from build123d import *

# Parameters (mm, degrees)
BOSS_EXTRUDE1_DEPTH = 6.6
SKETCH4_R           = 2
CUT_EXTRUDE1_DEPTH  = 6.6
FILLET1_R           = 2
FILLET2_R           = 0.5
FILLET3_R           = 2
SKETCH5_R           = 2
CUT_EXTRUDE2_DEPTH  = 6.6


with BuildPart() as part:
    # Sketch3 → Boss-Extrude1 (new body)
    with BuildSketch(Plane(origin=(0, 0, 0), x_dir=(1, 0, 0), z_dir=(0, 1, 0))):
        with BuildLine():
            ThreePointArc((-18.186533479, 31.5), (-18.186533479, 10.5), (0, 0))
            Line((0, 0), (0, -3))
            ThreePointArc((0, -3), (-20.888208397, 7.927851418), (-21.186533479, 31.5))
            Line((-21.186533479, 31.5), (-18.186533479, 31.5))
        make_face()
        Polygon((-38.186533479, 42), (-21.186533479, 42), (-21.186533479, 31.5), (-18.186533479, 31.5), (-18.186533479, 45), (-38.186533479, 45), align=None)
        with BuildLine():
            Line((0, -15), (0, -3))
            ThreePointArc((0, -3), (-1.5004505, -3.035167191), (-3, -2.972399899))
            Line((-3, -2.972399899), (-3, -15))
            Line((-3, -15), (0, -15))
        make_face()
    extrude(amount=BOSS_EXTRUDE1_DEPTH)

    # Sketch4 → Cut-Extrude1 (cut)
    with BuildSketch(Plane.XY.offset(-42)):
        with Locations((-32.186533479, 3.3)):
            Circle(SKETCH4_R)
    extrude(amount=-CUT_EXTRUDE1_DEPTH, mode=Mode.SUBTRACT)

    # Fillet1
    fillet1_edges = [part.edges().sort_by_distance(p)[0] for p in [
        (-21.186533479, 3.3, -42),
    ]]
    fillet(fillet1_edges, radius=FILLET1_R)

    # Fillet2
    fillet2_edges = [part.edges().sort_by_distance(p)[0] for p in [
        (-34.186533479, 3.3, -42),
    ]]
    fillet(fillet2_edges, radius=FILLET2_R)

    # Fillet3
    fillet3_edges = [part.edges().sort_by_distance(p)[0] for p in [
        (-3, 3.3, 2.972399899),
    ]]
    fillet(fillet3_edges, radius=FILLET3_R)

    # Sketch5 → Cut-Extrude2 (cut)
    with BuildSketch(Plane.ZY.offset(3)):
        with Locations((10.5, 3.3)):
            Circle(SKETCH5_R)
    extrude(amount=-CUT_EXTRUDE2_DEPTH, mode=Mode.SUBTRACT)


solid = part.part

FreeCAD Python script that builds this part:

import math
import FreeCAD as App
import Part
import Sketcher
from FreeCAD import Vector
Q = App.Units.Quantity


def edges_at(feature, points):
    """Names of the edges that pass closest to the given points."""
    edges = feature.Shape.Edges
    near = lambda p: min(range(len(edges)), key=lambda i: edges[i].distToShape(Part.Vertex(*p))[0])
    return sorted({f"Edge{near(p) + 1}" for p in points})

doc = App.newDocument("Part")
body = doc.addObject("PartDesign::Body", "Body")

sketch1 = body.newObject("Sketcher::SketchObject", "Sketch")
sketch1.AttachmentSupport = (doc.getObject("XZ_Plane"), [""])
sketch1.MapMode = "FlatFace"
sketch1.addGeometry(Part.ArcOfCircle(Part.Circle(Vector(0, -21, 0), Vector(0, 0, 1), 21), math.radians(90), math.radians(210)), False)
sketch1.addGeometry(Part.LineSegment(Vector(-18.186533, -31.5, 0), Vector(-18.186533, -45, 0)), False)
sketch1.addGeometry(Part.LineSegment(Vector(-18.186533, -45, 0), Vector(-38.186533, -45, 0)), False)
sketch1.addGeometry(Part.LineSegment(Vector(-38.186533, -45, 0), Vector(-38.186533, -42, 0)), False)
sketch1.addGeometry(Part.LineSegment(Vector(-38.186533, -42, 0), Vector(-21.186533, -42, 0)), False)
sketch1.addGeometry(Part.LineSegment(Vector(-21.186533, -42, 0), Vector(-21.186533, -31.5, 0)), False)
sketch1.addGeometry(Part.ArcOfCircle(Part.Circle(Vector(-1.288859, -19.96386, 0), Vector(0, 0, 1), 23), math.radians(94.266602), math.radians(210.104013)), False)
sketch1.addGeometry(Part.LineSegment(Vector(-3, 2.9724, 0), Vector(-3, 15, 0)), False)
sketch1.addGeometry(Part.LineSegment(Vector(-3, 15, 0), Vector(0, 15, 0)), False)
sketch1.addGeometry(Part.LineSegment(Vector(0, 15, 0), Vector(0, 0, 0)), False)
sketch1.addConstraint(Sketcher.Constraint("Coincident", 0, 2, 1, 1))
sketch1.addConstraint(Sketcher.Constraint("Coincident", 1, 2, 2, 1))
sketch1.addConstraint(Sketcher.Constraint("Coincident", 2, 2, 3, 1))
sketch1.addConstraint(Sketcher.Constraint("Coincident", 3, 2, 4, 1))
sketch1.addConstraint(Sketcher.Constraint("Coincident", 4, 2, 5, 1))
sketch1.addConstraint(Sketcher.Constraint("Coincident", 5, 2, 6, 2))
sketch1.addConstraint(Sketcher.Constraint("Coincident", 6, 1, 7, 1))
sketch1.addConstraint(Sketcher.Constraint("Coincident", 7, 2, 8, 1))
sketch1.addConstraint(Sketcher.Constraint("Coincident", 8, 2, 9, 1))
sketch1.addConstraint(Sketcher.Constraint("Coincident", 9, 2, 0, 1))
sketch1.addConstraint(Sketcher.Constraint("Vertical", 1))
sketch1.addConstraint(Sketcher.Constraint("Horizontal", 2))
sketch1.addConstraint(Sketcher.Constraint("Vertical", 3))
sketch1.addConstraint(Sketcher.Constraint("Horizontal", 4))
sketch1.addConstraint(Sketcher.Constraint("Vertical", 5))
sketch1.addConstraint(Sketcher.Constraint("Vertical", 7))
sketch1.addConstraint(Sketcher.Constraint("Horizontal", 8))
sketch1.addConstraint(Sketcher.Constraint("Vertical", 9))
sketch1.addConstraint(Sketcher.Constraint("Coincident", 9, 2, -1, 1))
sketch1.addConstraint(Sketcher.Constraint("PointOnObject", 0, 3, -2))
sketch1.addConstraint(Sketcher.Constraint("Horizontal", 0, 2, 5, 2))
sketch1.addConstraint(Sketcher.Constraint("Equal", 8, 3))
sketch1.addConstraint(Sketcher.Constraint("Radius", 0, Q("21 mm")))
sketch1.addConstraint(Sketcher.Constraint("Radius", 6, Q("23 mm")))
sketch1.addConstraint(Sketcher.Constraint("DistanceX", 2, 2, 2, 1, Q("20 mm")))
sketch1.addConstraint(Sketcher.Constraint("DistanceX", 4, 1, 4, 2, Q("17 mm")))
sketch1.addConstraint(Sketcher.Constraint("DistanceX", 8, 1, 8, 2, Q("3 mm")))
sketch1.addConstraint(Sketcher.Constraint("DistanceY", 9, 2, 9, 1, Q("15 mm")))
sketch1.addConstraint(Sketcher.Constraint("DistanceY", 1, 2, 1, 1, Q("13.5 mm")))
sketch1.addConstraint(Sketcher.Constraint("DistanceY", 1, 2, -1, 1, Q("45 mm")))
sketch1.addConstraint(Sketcher.Constraint("DistanceY", 7, 1, 7, 2, Q("12.0276 mm")))
pad1 = body.newObject("PartDesign::Pad", "Pad")
pad1.Profile = sketch1
pad1.Length = 6.6
pad1.Reversed = True

sketch2 = body.newObject("Sketcher::SketchObject", "Sketch001")
sketch2.AttachmentSupport = (doc.getObject("XY_Plane"), [""])
sketch2.MapMode = "FlatFace"
sketch2.AttachmentOffset = App.Placement(Vector(0, 0, -42), App.Rotation())
sketch2.addGeometry(Part.Circle(Vector(-32.186533, 3.3, 0), Vector(0, 0, 1), 2), False)
sketch2.addConstraint(Sketcher.Constraint("Diameter", 0, Q("4 mm")))
sketch2.addConstraint(Sketcher.Constraint("DistanceY", -1, 1, 0, 3, Q("3.3 mm")))
sketch2.addConstraint(Sketcher.Constraint("DistanceX", 0, 3, -1, 1, Q("32.186533 mm")))
pocket1 = body.newObject("PartDesign::Pocket", "Pocket")
pocket1.Profile = sketch2
pocket1.Length = 6.6
doc.recompute()

fillet = body.newObject("PartDesign::Fillet", "Fillet")
fillet.Base = (pocket1, edges_at(pocket1, [(-21.187, 3.3, -42)]))
fillet.Radius = 2
doc.recompute()

fillet2 = body.newObject("PartDesign::Fillet", "Fillet001")
fillet2.Base = (fillet, edges_at(fillet, [(-34.187, 3.3, -42)]))
fillet2.Radius = 0.5
doc.recompute()

fillet3 = body.newObject("PartDesign::Fillet", "Fillet002")
fillet3.Base = (fillet2, edges_at(fillet2, [(-3, 3.3, 2.972)]))
fillet3.Radius = 2

sketch3 = body.newObject("Sketcher::SketchObject", "Sketch002")
sketch3.AttachmentSupport = (doc.getObject("YZ_Plane"), [""])
sketch3.MapMode = "FlatFace"
sketch3.AttachmentOffset = App.Placement(Vector(0, 0, -3), App.Rotation())
sketch3.addGeometry(Part.Circle(Vector(3.3, 10.5, 0), Vector(0, 0, 1), 2), False)
sketch3.addConstraint(Sketcher.Constraint("Diameter", 0, Q("4 mm")))
sketch3.addConstraint(Sketcher.Constraint("DistanceX", -1, 1, 0, 3, Q("3.3 mm")))
sketch3.addConstraint(Sketcher.Constraint("DistanceY", -1, 1, 0, 3, Q("10.5 mm")))
pocket2 = body.newObject("PartDesign::Pocket", "Pocket001")
pocket2.Profile = sketch3
pocket2.Length = 6.6
pocket2.Reversed = True

doc.recompute()
